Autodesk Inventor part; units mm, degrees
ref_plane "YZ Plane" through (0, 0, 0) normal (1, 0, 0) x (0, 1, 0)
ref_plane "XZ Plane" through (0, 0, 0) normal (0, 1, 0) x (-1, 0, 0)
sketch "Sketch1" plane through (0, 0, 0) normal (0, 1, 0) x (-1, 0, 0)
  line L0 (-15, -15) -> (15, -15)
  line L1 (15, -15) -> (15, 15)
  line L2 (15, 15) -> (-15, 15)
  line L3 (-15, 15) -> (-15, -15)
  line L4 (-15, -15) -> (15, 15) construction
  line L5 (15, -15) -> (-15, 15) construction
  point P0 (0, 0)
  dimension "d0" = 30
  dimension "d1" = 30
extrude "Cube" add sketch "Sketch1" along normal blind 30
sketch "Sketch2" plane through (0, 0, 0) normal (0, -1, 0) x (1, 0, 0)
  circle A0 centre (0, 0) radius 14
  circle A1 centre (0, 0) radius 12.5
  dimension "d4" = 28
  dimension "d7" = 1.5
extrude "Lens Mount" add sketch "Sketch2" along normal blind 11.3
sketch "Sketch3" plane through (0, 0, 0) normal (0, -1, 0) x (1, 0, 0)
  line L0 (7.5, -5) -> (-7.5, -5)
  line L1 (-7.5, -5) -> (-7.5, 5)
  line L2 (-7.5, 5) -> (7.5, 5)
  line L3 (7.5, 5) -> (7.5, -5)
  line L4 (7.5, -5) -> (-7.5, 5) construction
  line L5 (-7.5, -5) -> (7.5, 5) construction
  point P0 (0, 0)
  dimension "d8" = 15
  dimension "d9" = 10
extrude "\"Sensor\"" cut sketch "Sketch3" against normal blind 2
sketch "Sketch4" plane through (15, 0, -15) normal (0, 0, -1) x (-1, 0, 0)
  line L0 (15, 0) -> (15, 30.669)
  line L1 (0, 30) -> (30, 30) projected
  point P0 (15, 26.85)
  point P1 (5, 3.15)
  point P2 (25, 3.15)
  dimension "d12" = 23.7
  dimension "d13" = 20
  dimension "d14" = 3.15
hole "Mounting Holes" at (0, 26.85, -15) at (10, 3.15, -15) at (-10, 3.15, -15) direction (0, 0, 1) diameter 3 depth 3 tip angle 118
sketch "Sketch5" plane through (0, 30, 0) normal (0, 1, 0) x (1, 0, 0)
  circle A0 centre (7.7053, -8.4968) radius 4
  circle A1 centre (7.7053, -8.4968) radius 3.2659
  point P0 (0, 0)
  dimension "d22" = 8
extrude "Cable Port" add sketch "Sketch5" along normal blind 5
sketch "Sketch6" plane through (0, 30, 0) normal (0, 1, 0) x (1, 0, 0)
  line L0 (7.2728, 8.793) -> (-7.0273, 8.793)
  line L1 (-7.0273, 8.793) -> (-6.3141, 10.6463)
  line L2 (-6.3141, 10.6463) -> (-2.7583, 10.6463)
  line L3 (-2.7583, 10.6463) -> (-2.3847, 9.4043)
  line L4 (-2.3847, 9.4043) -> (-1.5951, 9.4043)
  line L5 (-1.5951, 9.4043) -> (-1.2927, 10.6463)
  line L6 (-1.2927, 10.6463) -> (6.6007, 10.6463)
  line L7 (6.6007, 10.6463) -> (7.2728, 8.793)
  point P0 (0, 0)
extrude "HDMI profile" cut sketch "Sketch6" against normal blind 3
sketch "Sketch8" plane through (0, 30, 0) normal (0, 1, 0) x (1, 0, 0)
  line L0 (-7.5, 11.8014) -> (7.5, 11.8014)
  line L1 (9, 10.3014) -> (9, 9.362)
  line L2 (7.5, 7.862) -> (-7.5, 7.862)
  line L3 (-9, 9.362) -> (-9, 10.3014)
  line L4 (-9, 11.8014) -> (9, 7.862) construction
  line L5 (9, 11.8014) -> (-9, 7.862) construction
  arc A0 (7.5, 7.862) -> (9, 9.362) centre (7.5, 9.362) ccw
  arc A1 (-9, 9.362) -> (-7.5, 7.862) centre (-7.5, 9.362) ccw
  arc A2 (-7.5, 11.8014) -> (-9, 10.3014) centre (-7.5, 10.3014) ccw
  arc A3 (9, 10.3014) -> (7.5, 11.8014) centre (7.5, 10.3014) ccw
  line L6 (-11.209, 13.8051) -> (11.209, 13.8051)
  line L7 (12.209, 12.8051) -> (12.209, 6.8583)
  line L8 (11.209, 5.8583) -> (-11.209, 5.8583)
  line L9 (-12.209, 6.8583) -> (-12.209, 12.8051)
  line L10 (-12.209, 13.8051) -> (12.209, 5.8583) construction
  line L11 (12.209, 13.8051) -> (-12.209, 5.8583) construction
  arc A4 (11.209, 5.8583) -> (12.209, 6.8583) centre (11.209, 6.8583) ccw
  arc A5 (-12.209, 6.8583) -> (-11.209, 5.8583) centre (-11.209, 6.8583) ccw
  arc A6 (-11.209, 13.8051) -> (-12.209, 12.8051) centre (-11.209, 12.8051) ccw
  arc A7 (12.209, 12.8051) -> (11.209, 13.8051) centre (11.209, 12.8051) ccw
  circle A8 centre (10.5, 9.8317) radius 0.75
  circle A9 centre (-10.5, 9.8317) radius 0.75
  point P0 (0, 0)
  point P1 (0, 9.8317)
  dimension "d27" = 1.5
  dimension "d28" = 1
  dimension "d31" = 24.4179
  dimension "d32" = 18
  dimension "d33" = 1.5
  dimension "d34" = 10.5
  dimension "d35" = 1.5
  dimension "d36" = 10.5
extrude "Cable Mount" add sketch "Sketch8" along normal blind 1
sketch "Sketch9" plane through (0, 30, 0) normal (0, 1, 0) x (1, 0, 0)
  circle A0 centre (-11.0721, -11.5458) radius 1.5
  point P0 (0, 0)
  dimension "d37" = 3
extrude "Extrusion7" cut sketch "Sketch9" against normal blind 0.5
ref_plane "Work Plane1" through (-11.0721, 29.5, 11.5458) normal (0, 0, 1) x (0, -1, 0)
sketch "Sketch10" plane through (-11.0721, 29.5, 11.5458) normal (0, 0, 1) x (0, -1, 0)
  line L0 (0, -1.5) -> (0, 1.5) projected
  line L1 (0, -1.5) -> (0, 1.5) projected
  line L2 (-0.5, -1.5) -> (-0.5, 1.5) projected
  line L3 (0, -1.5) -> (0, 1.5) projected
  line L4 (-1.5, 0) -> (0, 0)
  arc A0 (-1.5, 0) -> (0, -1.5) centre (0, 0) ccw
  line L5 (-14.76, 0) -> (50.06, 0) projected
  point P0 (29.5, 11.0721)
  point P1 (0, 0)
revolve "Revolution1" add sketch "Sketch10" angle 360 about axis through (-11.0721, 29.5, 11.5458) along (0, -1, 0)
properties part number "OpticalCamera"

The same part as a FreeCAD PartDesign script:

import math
import FreeCAD as App
import Part
import Sketcher
Q = App.Units.Quantity

doc = App.newDocument("Part")
body = doc.addObject("PartDesign::Body", "Body")

# Sketch on XZ plane
sketch1 = doc.addObject("Sketcher::SketchObject", "Sketch")
body.addObject(sketch1)
sketch1.AttachmentSupport = (doc.XZ_Plane, [""])
sketch1.MapMode = "FlatFace"
sketch1.addGeometry(Part.LineSegment(App.Vector(15, 15, 0), App.Vector(15, -15, 0)), False)
sketch1.addGeometry(Part.LineSegment(App.Vector(15, -15, 0), App.Vector(-15, -15, 0)), False)
sketch1.addGeometry(Part.LineSegment(App.Vector(-15, -15, 0), App.Vector(-15, 15, 0)), False)
sketch1.addGeometry(Part.LineSegment(App.Vector(-15, 15, 0), App.Vector(15, 15, 0)), False)
sketch1.addConstraint(Sketcher.Constraint("Coincident", 0, 2, 1, 1))
sketch1.addConstraint(Sketcher.Constraint("Coincident", 1, 2, 2, 1))
sketch1.addConstraint(Sketcher.Constraint("Coincident", 2, 2, 3, 1))
sketch1.addConstraint(Sketcher.Constraint("Coincident", 3, 2, 0, 1))
sketch1.addConstraint(Sketcher.Constraint("Vertical", 0))
sketch1.addConstraint(Sketcher.Constraint("Horizontal", 1))
sketch1.addConstraint(Sketcher.Constraint("Vertical", 2))
sketch1.addConstraint(Sketcher.Constraint("Horizontal", 3))
sketch1.addConstraint(Sketcher.Constraint("Symmetric", 0, 2, 2, 2, -1, 1))
sketch1.addConstraint(Sketcher.Constraint("Equal", 3, 0))
sketch1.addConstraint(Sketcher.Constraint("DistanceX", 1, 2, 1, 1, Q("30 mm")))
pad1 = doc.addObject("PartDesign::Pad", "Pad")
body.addObject(pad1)
pad1.Profile = sketch1
pad1.Length = 30
pad1.Reversed = True

# Sketch on XZ plane
sketch2 = doc.addObject("Sketcher::SketchObject", "Sketch001")
body.addObject(sketch2)
sketch2.AttachmentSupport = (doc.XZ_Plane, [""])
sketch2.MapMode = "FlatFace"
sketch2.addGeometry(Part.Circle(App.Vector(0, 0, 0), App.Vector(0, 0, 1), 14), False)
sketch2.addGeometry(Part.Circle(App.Vector(0, 0, 0), App.Vector(0, 0, 1), 12), False)
sketch2.addConstraint(Sketcher.Constraint("Coincident", 0, 3, -1, 1))
sketch2.addConstraint(Sketcher.Constraint("Coincident", 1, 3, -1, 1))
sketch2.addConstraint(Sketcher.Constraint("Diameter", 0, Q("28 mm")))
sketch2.addConstraint(Sketcher.Constraint("Diameter", 1, Q("25 mm")))
pad2 = doc.addObject("PartDesign::Pad", "Pad001")
body.addObject(pad2)
pad2.Profile = sketch2
pad2.Length = 11.3

# Sketch on XZ plane
sketch3 = doc.addObject("Sketcher::SketchObject", "Sketch002")
body.addObject(sketch3)
sketch3.AttachmentSupport = (doc.XZ_Plane, [""])
sketch3.MapMode = "FlatFace"
sketch3.addGeometry(Part.LineSegment(App.Vector(-8, -5, 0), App.Vector(8, -5, 0)), False)
sketch3.addGeometry(Part.LineSegment(App.Vector(8, -5, 0), App.Vector(8, 5, 0)), False)
sketch3.addGeometry(Part.LineSegment(App.Vector(8, 5, 0), App.Vector(-8, 5, 0)), False)
sketch3.addGeometry(Part.LineSegment(App.Vector(-8, 5, 0), App.Vector(-8, -5, 0)), False)
sketch3.addConstraint(Sketcher.Constraint("Coincident", 0, 2, 1, 1))
sketch3.addConstraint(Sketcher.Constraint("Coincident", 1, 2, 2, 1))
sketch3.addConstraint(Sketcher.Constraint("Coincident", 2, 2, 3, 1))
sketch3.addConstraint(Sketcher.Constraint("Coincident", 3, 2, 0, 1))
sketch3.addConstraint(Sketcher.Constraint("Horizontal", 0))
sketch3.addConstraint(Sketcher.Constraint("Vertical", 1))
sketch3.addConstraint(Sketcher.Constraint("Horizontal", 2))
sketch3.addConstraint(Sketcher.Constraint("Vertical", 3))
sketch3.addConstraint(Sketcher.Constraint("Symmetric", 0, 2, 2, 2, -1, 1))
sketch3.addConstraint(Sketcher.Constraint("DistanceX", 0, 1, 0, 2, Q("15 mm")))
sketch3.addConstraint(Sketcher.Constraint("DistanceY", 1, 1, 1, 2, Q("10 mm")))
pocket1 = doc.addObject("PartDesign::Pocket", "Pocket")
body.addObject(pocket1)
pocket1.Profile = sketch3
pocket1.Length = 2

# Sketch on XY plane
sketch4 = doc.addObject("Sketcher::SketchObject", "Sketch003")
body.addObject(sketch4)
sketch4.AttachmentSupport = (doc.XY_Plane, [""])
sketch4.MapMode = "FlatFace"
sketch4.AttachmentOffset = App.Placement(App.Vector(0, 0, -15), App.Rotation())
sketch4.addGeometry(Part.Circle(App.Vector(0, 26.9, 0), App.Vector(0, 0, 1), 1.5), False)
sketch4.addGeometry(Part.Circle(App.Vector(10, 3.1, 0), App.Vector(0, 0, 1), 1.5), False)
sketch4.addGeometry(Part.Circle(App.Vector(-10, 3.1, 0), App.Vector(0, 0, 1), 1.5), False)
sketch4.addConstraint(Sketcher.Constraint("Equal", 0, 1))
sketch4.addConstraint(Sketcher.Constraint("Equal", 1, 2))
sketch4.addConstraint(Sketcher.Constraint("Symmetric", 1, 3, 2, 3, -2))
sketch4.addConstraint(Sketcher.Constraint("PointOnObject", 0, 3, -2))
sketch4.addConstraint(Sketcher.Constraint("Diameter", 0, Q("3 mm")))
sketch4.addConstraint(Sketcher.Constraint("DistanceX", -1, 1, 1, 3, Q("10 mm")))
sketch4.addConstraint(Sketcher.Constraint("DistanceY", 1, 3, 0, 3, Q("23.7 mm")))
sketch4.addConstraint(Sketcher.Constraint("DistanceY", -1, 1, 0, 3, Q("26.85 mm")))
doc.recompute()
hole = doc.addObject("PartDesign::Hole", "Hole")
body.addObject(hole)
hole.Profile = sketch4
hole.ThreadType = "None"
hole.Diameter = 3
hole.DepthType = "Dimension"
hole.Depth = 3
hole.DrillPoint = "Angled"
hole.DrillPointAngle = 118
hole.Reversed = True

# Sketch on XZ plane
sketch5 = doc.addObject("Sketcher::SketchObject", "Sketch004")
body.addObject(sketch5)
sketch5.AttachmentSupport = (doc.XZ_Plane, [""])
sketch5.MapMode = "FlatFace"
sketch5.AttachmentOffset = App.Placement(App.Vector(0, 0, -30), App.Rotation())
sketch5.addGeometry(Part.Circle(App.Vector(7.7, 8.5, 0), App.Vector(0, 0, 1), 4), False)
sketch5.addGeometry(Part.Circle(App.Vector(7.7, 8.5, 0), App.Vector(0, 0, 1), 3.3), False)
sketch5.addConstraint(Sketcher.Constraint("Coincident", 1, 3, 0, 3))
sketch5.addConstraint(Sketcher.Constraint("Diameter", 0, Q("8 mm")))
sketch5.addConstraint(Sketcher.Constraint("Diameter", 1, Q("6.5318 mm")))
sketch5.addConstraint(Sketcher.Constraint("DistanceX", -1, 1, 0, 3, Q("7.7053 mm")))
sketch5.addConstraint(Sketcher.Constraint("DistanceY", -1, 1, 0, 3, Q("8.4968 mm")))
pad3 = doc.addObject("PartDesign::Pad", "Pad002")
body.addObject(pad3)
pad3.Profile = sketch5
pad3.Length = 5
pad3.Reversed = True

# Sketch on XZ plane
sketch6 = doc.addObject("Sketcher::SketchObject", "Sketch005")
body.addObject(sketch6)
sketch6.AttachmentSupport = (doc.XZ_Plane, [""])
sketch6.MapMode = "FlatFace"
sketch6.AttachmentOffset = App.Placement(App.Vector(0, 0, -30), App.Rotation())
sketch6.addGeometry(Part.LineSegment(App.Vector(-7, -8.8, 0), App.Vector(7.3, -8.8, 0)), False)
sketch6.addGeometry(Part.LineSegment(App.Vector(7.3, -8.8, 0), App.Vector(6.6, -10.6, 0)), False)
sketch6.addGeometry(Part.LineSegment(App.Vector(6.6, -10.6, 0), App.Vector(-1.3, -10.6, 0)), False)
sketch6.addGeometry(Part.LineSegment(App.Vector(-1.3, -10.6, 0), App.Vector(-1.6, -9.4, 0)), False)
sketch6.addGeometry(Part.LineSegment(App.Vector(-1.6, -9.4, 0), App.Vector(-2.4, -9.4, 0)), False)
sketch6.addGeometry(Part.LineSegment(App.Vector(-2.4, -9.4, 0), App.Vector(-2.8, -10.6, 0)), False)
sketch6.addGeometry(Part.LineSegment(App.Vector(-2.8, -10.6, 0), App.Vector(-6.3, -10.6, 0)), False)
sketch6.addGeometry(Part.LineSegment(App.Vector(-6.3, -10.6, 0), App.Vector(-7, -8.8, 0)), False)
sketch6.addConstraint(Sketcher.Constraint("Coincident", 0, 2, 1, 1))
sketch6.addConstraint(Sketcher.Constraint("Coincident", 1, 2, 2, 1))
sketch6.addConstraint(Sketcher.Constraint("Coincident", 2, 2, 3, 1))
sketch6.addConstraint(Sketcher.Constraint("Coincident", 3, 2, 4, 1))
sketch6.addConstraint(Sketcher.Constraint("Coincident", 4, 2, 5, 1))
sketch6.addConstraint(Sketcher.Constraint("Coincident", 5, 2, 6, 1))
sketch6.addConstraint(Sketcher.Constraint("Coincident", 6, 2, 7, 1))
sketch6.addConstraint(Sketcher.Constraint("Coincident", 7, 2, 0, 1))
sketch6.addConstraint(Sketcher.Constraint("Horizontal", 0))
sketch6.addConstraint(Sketcher.Constraint("Horizontal", 2))
sketch6.addConstraint(Sketcher.Constraint("Horizontal", 4))
sketch6.addConstraint(Sketcher.Constraint("Horizontal", 6))
sketch6.addConstraint(Sketcher.Constraint("Horizontal", 2, 2, 5, 2))
sketch6.addConstraint(Sketcher.Constraint("DistanceX", 0, 1, 0, 2, Q("14.3 mm")))
sketch6.addConstraint(Sketcher.Constraint("Distance", 5, Q("1.297 mm")))
sketch6.addConstraint(Sketcher.Constraint("DistanceX", 2, 2, 2, 1, Q("7.8934 mm")))
sketch6.addConstraint(Sketcher.Constraint("DistanceX", 4, 2, 4, 1, Q("0.7896 mm")))
sketch6.addConstraint(Sketcher.Constraint("DistanceX", 6, 2, 6, 1, Q("3.5558 mm")))
sketch6.addConstraint(Sketcher.Constraint("DistanceY", 0, 2, -1, 1, Q("8.793 mm")))
sketch6.addConstraint(Sketcher.Constraint("DistanceX", 3, 2, -1, 1, Q("1.595 mm")))
sketch6.addConstraint(Sketcher.Constraint("DistanceX", 6, 2, -1, 1, Q("6.314 mm")))
sketch6.addConstraint(Sketcher.Constraint("DistanceX", 1, 2, 0, 2, Q("0.672 mm")))
sketch6.addConstraint(Sketcher.Constraint("DistanceX", 3, 2, 0, 2, Q("8.868 mm")))
sketch6.addConstraint(Sketcher.Constraint("Distance", 1, Q("1.9714 mm")))
pocket2 = doc.addObject("PartDesign::Pocket", "Pocket001")
body.addObject(pocket2)
pocket2.Profile = sketch6
pocket2.Length = 3
pocket2.Reversed = True

# Sketch on XZ plane
sketch7 = doc.addObject("Sketcher::SketchObject", "Sketch006")
body.addObject(sketch7)
sketch7.AttachmentSupport = (doc.XZ_Plane, [""])
sketch7.MapMode = "FlatFace"
sketch7.AttachmentOffset = App.Placement(App.Vector(0, 0, -30), App.Rotation())
sketch7.addGeometry(Part.LineSegment(App.Vector(11.2, -13.8, 0), App.Vector(-11.2, -13.8, 0)), False)
sketch7.addGeometry(Part.ArcOfCircle(Part.Circle(App.Vector(-11.2, -12.8, 0), App.Vector(0, 0, 1), 1), math.radians(180), math.radians(270)), False)
sketch7.addGeometry(Part.LineSegment(App.Vector(-12.2, -12.8, 0), App.Vector(-12.2, -6.9, 0)), False)
sketch7.addGeometry(Part.ArcOfCircle(Part.Circle(App.Vector(-11.2, -6.9, 0), App.Vector(0, 0, 1), 1), math.radians(90), math.radians(180)), False)
sketch7.addGeometry(Part.LineSegment(App.Vector(-11.2, -5.9, 0), App.Vector(11.2, -5.9, 0)), False)
sketch7.addGeometry(Part.ArcOfCircle(Part.Circle(App.Vector(11.2, -6.9, 0), App.Vector(0, 0, 1), 1), math.radians(0), math.radians(90)), False)
sketch7.addGeometry(Part.LineSegment(App.Vector(12.2, -6.9, 0), App.Vector(12.2, -12.8, 0)), False)
sketch7.addGeometry(Part.ArcOfCircle(Part.Circle(App.Vector(11.2, -12.8, 0), App.Vector(0, 0, 1), 1), math.radians(-90), math.radians(0)), False)
sketch7.addGeometry(Part.Circle(App.Vector(-10.5, -9.8, 0), App.Vector(0, 0, 1), 0.8), False)
sketch7.addGeometry(Part.ArcOfCircle(Part.Circle(App.Vector(-7.5, -10.3, 0), App.Vector(0, 0, 1), 1.5), math.radians(180), math.radians(270)), False)
sketch7.addGeometry(Part.LineSegment(App.Vector(-7.5, -11.8, 0), App.Vector(7.5, -11.8, 0)), False)
sketch7.addGeometry(Part.ArcOfCircle(Part.Circle(App.Vector(7.5, -10.3, 0), App.Vector(0, 0, 1), 1.5), math.radians(-90), math.radians(0)), False)
sketch7.addGeometry(Part.LineSegment(App.Vector(9, -10.3, 0), App.Vector(9, -9.4, 0)), False)
sketch7.addGeometry(Part.ArcOfCircle(Part.Circle(App.Vector(7.5, -9.4, 0), App.Vector(0, 0, 1), 1.5), math.radians(0), math.radians(90)), False)
sketch7.addGeometry(Part.LineSegment(App.Vector(7.5, -7.9, 0), App.Vector(-7.5, -7.9, 0)), False)
sketch7.addGeometry(Part.ArcOfCircle(Part.Circle(App.Vector(-7.5, -9.4, 0), App.Vector(0, 0, 1), 1.5), math.radians(90), math.radians(180)), False)
sketch7.addGeometry(Part.LineSegment(App.Vector(-9, -9.4, 0), App.Vector(-9, -10.3, 0)), False)
sketch7.addGeometry(Part.Circle(App.Vector(10.5, -9.8, 0), App.Vector(0, 0, 1), 0.8), False)
sketch7.addConstraint(Sketcher.Constraint("Tangent", 0, 2, 1, 2))
sketch7.addConstraint(Sketcher.Constraint("Tangent", 1, 1, 2, 1))
sketch7.addConstraint(Sketcher.Constraint("Tangent", 2, 2, 3, 2))
sketch7.addConstraint(Sketcher.Constraint("Tangent", 3, 1, 4, 1))
sketch7.addConstraint(Sketcher.Constraint("Tangent", 4, 2, 5, 2))
sketch7.addConstraint(Sketcher.Constraint("Tangent", 5, 1, 6, 1))
sketch7.addConstraint(Sketcher.Constraint("Tangent", 6, 2, 7, 2))
sketch7.addConstraint(Sketcher.Constraint("Tangent", 7, 1, 0, 1))
sketch7.addConstraint(Sketcher.Constraint("Tangent", 9, 2, 10, 1))
sketch7.addConstraint(Sketcher.Constraint("Tangent", 10, 2, 11, 1))
sketch7.addConstraint(Sketcher.Constraint("Tangent", 11, 2, 12, 1))
sketch7.addConstraint(Sketcher.Constraint("Tangent", 12, 2, 13, 1))
sketch7.addConstraint(Sketcher.Constraint("Tangent", 13, 2, 14, 1))
sketch7.addConstraint(Sketcher.Constraint("Tangent", 14, 2, 15, 1))
sketch7.addConstraint(Sketcher.Constraint("Tangent", 15, 2, 16, 1))
sketch7.addConstraint(Sketcher.Constraint("Tangent", 16, 2, 9, 1))
sketch7.addConstraint(Sketcher.Constraint("Horizontal", 0))
sketch7.addConstraint(Sketcher.Constraint("Vertical", 2))
sketch7.addConstraint(Sketcher.Constraint("Horizontal", 4))
sketch7.addConstraint(Sketcher.Constraint("Vertical", 6))
sketch7.addConstraint(Sketcher.Constraint("Horizontal", 10))
sketch7.addConstraint(Sketcher.Constraint("Vertical", 12))
sketch7.addConstraint(Sketcher.Constraint("Horizontal", 14))
sketch7.addConstraint(Sketcher.Constraint("Vertical", 16))
sketch7.addConstraint(Sketcher.Constraint("Equal", 1, 3))
sketch7.addConstraint(Sketcher.Constraint("Equal", 3, 5))
sketch7.addConstraint(Sketcher.Constraint("Equal", 5, 7))
sketch7.addConstraint(Sketcher.Constraint("Equal", 9, 11))
sketch7.addConstraint(Sketcher.Constraint("Equal", 11, 13))
sketch7.addConstraint(Sketcher.Constraint("Equal", 13, 15))
sketch7.addConstraint(Sketcher.Constraint("Equal", 8, 17))
sketch7.addConstraint(Sketcher.Constraint("Symmetric", 8, 3, 17, 3, -2))
sketch7.addConstraint(Sketcher.Constraint("Radius", 1, Q("1 mm")))
sketch7.addConstraint(Sketcher.Constraint("Diameter", 8, Q("1.5 mm")))
sketch7.addConstraint(Sketcher.Constraint("Radius", 9, Q("1.5 mm")))
sketch7.addConstraint(Sketcher.Constraint("DistanceX", 8, 3, 11, 3, Q("18 mm")))
sketch7.addConstraint(Sketcher.Constraint("DistanceX", 9, 3, 17, 3, Q("18 mm")))
sketch7.addConstraint(Sketcher.Constraint("DistanceX", 8, 3, -1, 1, Q("10.5 mm")))
sketch7.addConstraint(Sketcher.Constraint("DistanceX", 0, 2, 0, 1, Q("22.418 mm")))
sketch7.addConstraint(Sketcher.Constraint("DistanceY", 2, 1, 2, 2, Q("5.9468 mm")))
sketch7.addConstraint(Sketcher.Constraint("DistanceY", 12, 1, 12, 2, Q("0.9394 mm")))
sketch7.addConstraint(Sketcher.Constraint("DistanceX", 1, 3, -1, 1, Q("11.209 mm")))
sketch7.addConstraint(Sketcher.Constraint("DistanceY", 1, 3, -1, 1, Q("12.805 mm")))
sketch7.addConstraint(Sketcher.Constraint("DistanceY", 13, 3, -1, 1, Q("9.362 mm")))
sketch7.addConstraint(Sketcher.Constraint("DistanceY", 8, 3, -1, 1, Q("9.8317 mm")))
pad4 = doc.addObject("PartDesign::Pad", "Pad003")
body.addObject(pad4)
pad4.Profile = sketch7
pad4.Length = 1
pad4.Reversed = True

# Sketch on XZ plane
sketch8 = doc.addObject("Sketcher::SketchObject", "Sketch007")
body.addObject(sketch8)
sketch8.AttachmentSupport = (doc.XZ_Plane, [""])
sketch8.MapMode = "FlatFace"
sketch8.AttachmentOffset = App.Placement(App.Vector(0, 0, -30), App.Rotation())
sketch8.addGeometry(Part.Circle(App.Vector(-11.1, 11.5, 0), App.Vector(0, 0, 1), 1.5), False)
sketch8.addConstraint(Sketcher.Constraint("Diameter", 0, Q("3 mm")))
sketch8.addConstraint(Sketcher.Constraint("DistanceX", 0, 3, -1, 1, Q("11.072 mm")))
sketch8.addConstraint(Sketcher.Constraint("DistanceY", -1, 1, 0, 3, Q("11.5458 mm")))
pocket3 = doc.addObject("PartDesign::Pocket", "Pocket002")
body.addObject(pocket3)
pocket3.Profile = sketch8
pocket3.Length = 0.5
pocket3.Reversed = True

# Sketch on XY plane
sketch9 = doc.addObject("Sketcher::SketchObject", "Sketch008")
body.addObject(sketch9)
sketch9.AttachmentSupport = (doc.XY_Plane, [""])
sketch9.MapMode = "FlatFace"
sketch9.AttachmentOffset = App.Placement(App.Vector(0, 0, 11.5458), App.Rotation())
sketch9.addGeometry(Part.LineSegment(App.Vector(-12.6, 29.5, 0), App.Vector(-11.1, 29.5, 0)), False)
sketch9.addGeometry(Part.LineSegment(App.Vector(-11.1, 29.5, 0), App.Vector(-11.1, 31, 0)), False)
sketch9.addGeometry(Part.ArcOfCircle(Part.Circle(App.Vector(-11.1, 29.5, 0), App.Vector(0, 0, 1), 1.5), math.radians(90), math.radians(180)), False)
sketch9.addGeometry(Part.LineSegment(App.Vector(-11.1, 31, 0), App.Vector(-11.1, 29.5, 0)), True)  # axis
sketch9.addConstraint(Sketcher.Constraint("Coincident", 0, 2, 1, 1))
sketch9.addConstraint(Sketcher.Constraint("Coincident", 1, 2, 2, 1))
sketch9.addConstraint(Sketcher.Constraint("Coincident", 2, 2, 0, 1))
sketch9.addConstraint(Sketcher.Constraint("Horizontal", 0))
sketch9.addConstraint(Sketcher.Constraint("Vertical", 1))
sketch9.addConstraint(Sketcher.Constraint("Vertical", 3))
sketch9.addConstraint(Sketcher.Constraint("Coincident", 0, 2, 2, 3))
sketch9.addConstraint(Sketcher.Constraint("Coincident", 3, 1, 1, 2))
sketch9.addConstraint(Sketcher.Constraint("Horizontal", 2, 2, 3, 2))
sketch9.addConstraint(Sketcher.Constraint("Radius", 2, Q("1.5 mm")))
sketch9.addConstraint(Sketcher.Constraint("DistanceY", -1, 1, 1, 2, Q("31 mm")))
sketch9.addConstraint(Sketcher.Constraint("DistanceX", 2, 3, -1, 1, Q("11.072 mm")))
revolution = doc.addObject("PartDesign::Revolution", "Revolution")
body.addObject(revolution)
revolution.Profile = sketch9
revolution.ReferenceAxis = (sketch9, ["Axis0"])
revolution.Angle = 360

doc.recompute()
